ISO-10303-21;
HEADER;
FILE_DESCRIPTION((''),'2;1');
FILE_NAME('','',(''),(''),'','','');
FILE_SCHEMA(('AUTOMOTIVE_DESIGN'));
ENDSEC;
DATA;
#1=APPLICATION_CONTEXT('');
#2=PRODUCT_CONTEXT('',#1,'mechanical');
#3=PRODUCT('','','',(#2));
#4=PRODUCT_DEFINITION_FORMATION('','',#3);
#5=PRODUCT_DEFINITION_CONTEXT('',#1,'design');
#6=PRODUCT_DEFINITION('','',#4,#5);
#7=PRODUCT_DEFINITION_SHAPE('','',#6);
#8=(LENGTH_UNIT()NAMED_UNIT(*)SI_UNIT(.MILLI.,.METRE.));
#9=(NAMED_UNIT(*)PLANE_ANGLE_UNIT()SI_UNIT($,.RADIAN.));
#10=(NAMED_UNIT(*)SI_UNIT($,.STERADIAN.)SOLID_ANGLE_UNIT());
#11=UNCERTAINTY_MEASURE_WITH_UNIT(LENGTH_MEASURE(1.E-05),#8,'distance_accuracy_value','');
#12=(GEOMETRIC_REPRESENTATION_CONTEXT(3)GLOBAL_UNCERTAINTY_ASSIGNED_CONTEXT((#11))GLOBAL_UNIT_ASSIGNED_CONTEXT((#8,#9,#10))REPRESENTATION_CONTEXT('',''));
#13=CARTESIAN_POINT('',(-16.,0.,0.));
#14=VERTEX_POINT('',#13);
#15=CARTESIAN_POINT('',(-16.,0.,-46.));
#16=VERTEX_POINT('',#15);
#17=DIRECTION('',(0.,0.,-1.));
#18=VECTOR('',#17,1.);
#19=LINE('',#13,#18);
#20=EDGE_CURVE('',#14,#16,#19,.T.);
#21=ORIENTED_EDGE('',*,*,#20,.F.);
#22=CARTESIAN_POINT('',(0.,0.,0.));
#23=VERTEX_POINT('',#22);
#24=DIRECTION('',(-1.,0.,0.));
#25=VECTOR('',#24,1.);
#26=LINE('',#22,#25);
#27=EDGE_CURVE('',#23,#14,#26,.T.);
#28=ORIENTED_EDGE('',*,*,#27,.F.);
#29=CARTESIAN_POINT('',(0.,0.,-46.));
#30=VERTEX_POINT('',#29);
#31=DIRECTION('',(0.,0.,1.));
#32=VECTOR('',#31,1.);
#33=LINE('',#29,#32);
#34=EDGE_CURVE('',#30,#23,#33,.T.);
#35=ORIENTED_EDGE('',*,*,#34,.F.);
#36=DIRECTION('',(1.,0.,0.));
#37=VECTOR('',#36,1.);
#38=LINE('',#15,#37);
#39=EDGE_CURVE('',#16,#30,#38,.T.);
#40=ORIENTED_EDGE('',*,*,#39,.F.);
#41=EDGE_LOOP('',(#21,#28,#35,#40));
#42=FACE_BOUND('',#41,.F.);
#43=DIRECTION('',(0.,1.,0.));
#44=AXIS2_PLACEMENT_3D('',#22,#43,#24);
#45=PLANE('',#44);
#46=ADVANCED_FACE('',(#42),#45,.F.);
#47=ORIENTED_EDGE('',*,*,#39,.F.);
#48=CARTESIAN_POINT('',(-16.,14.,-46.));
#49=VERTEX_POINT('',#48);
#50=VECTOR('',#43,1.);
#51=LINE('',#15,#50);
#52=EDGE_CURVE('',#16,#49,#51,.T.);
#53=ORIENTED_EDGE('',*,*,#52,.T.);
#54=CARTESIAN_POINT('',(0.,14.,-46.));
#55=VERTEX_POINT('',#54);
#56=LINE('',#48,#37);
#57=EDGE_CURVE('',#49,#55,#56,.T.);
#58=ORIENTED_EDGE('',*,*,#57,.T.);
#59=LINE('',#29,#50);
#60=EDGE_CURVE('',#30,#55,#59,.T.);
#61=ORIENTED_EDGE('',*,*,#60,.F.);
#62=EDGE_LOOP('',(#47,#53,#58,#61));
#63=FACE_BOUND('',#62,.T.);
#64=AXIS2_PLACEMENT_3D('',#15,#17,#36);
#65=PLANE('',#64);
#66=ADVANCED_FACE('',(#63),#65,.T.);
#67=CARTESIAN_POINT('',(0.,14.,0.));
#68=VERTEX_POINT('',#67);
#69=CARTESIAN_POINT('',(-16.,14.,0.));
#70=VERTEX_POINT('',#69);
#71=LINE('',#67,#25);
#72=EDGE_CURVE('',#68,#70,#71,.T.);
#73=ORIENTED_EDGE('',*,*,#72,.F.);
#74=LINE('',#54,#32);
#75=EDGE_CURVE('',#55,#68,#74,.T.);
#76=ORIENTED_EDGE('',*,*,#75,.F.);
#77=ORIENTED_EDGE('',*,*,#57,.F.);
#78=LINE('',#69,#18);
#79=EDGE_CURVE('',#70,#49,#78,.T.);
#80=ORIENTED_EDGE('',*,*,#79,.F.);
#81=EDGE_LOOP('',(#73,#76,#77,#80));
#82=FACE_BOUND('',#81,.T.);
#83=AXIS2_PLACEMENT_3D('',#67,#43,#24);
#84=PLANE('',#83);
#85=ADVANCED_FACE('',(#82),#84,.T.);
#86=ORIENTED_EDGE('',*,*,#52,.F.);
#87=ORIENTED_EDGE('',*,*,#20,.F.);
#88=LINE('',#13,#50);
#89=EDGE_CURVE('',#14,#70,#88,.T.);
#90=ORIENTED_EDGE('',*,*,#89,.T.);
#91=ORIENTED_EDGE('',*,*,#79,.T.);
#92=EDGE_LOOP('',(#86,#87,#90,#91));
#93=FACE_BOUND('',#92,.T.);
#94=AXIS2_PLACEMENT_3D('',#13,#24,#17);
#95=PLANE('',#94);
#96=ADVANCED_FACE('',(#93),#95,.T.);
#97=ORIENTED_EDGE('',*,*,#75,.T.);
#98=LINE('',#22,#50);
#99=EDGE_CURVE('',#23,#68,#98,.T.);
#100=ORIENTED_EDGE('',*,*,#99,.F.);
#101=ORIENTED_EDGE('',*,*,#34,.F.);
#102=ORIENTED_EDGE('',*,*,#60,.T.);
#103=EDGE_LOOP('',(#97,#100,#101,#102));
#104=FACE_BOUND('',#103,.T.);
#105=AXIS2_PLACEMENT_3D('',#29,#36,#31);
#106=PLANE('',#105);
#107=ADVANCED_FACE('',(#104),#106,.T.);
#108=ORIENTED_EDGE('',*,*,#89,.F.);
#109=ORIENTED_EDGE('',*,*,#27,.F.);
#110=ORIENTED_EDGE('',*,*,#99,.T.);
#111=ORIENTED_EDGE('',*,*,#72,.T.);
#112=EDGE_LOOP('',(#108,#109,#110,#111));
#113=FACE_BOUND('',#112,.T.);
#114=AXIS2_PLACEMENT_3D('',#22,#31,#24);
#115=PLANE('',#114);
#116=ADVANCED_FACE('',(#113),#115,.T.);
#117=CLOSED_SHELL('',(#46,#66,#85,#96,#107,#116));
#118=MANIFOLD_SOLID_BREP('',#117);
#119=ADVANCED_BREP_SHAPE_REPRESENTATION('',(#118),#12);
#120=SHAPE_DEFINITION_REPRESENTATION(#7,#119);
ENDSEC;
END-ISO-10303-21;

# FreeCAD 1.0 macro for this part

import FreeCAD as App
import Part
import Sketcher

V = App.Vector
Q = App.Units.Quantity


def add_polygon(sketch, points):
    """Adds a closed chain of lines whose ends are joined by coincident constraints."""
    first, n = sketch.GeometryCount, len(points)
    for a, b in zip(points, points[1:] + points[:1]):
        sketch.addGeometry(Part.LineSegment(App.Vector(*a, 0), App.Vector(*b, 0)), False)
    for i in range(n):
        sketch.addConstraint(Sketcher.Constraint("Coincident", first + i, 2, first + (i + 1) % n, 1))

doc = App.newDocument("Part")
body = doc.addObject("PartDesign::Body", "Body")

# Sketch on XZ plane
sketch1 = doc.addObject("Sketcher::SketchObject", "Sketch")
body.addObject(sketch1)
sketch1.AttachmentSupport = (doc.XZ_Plane, [""])
sketch1.MapMode = "FlatFace"
add_polygon(sketch1, [(-16, 0), (0, 0), (0, -46), (-16, -46)])  # lines 0-3
sketch1.addConstraint([
    Sketcher.Constraint("Horizontal", 0),
    Sketcher.Constraint("Vertical", 1),
    Sketcher.Constraint("Horizontal", 2),
    Sketcher.Constraint("Vertical", 3),
    Sketcher.Constraint("Coincident", 0, 2, -1, 1),
    Sketcher.Constraint("DistanceX", 0, 1, 0, 2, Q("16 mm")),
    Sketcher.Constraint("DistanceY", 1, 2, 1, 1, Q("46 mm")),
])
pad1 = doc.addObject("PartDesign::Pad", "Pad")
body.addObject(pad1)
pad1.Profile = sketch1
pad1.Length = 14
pad1.Reversed = True

doc.recompute()
